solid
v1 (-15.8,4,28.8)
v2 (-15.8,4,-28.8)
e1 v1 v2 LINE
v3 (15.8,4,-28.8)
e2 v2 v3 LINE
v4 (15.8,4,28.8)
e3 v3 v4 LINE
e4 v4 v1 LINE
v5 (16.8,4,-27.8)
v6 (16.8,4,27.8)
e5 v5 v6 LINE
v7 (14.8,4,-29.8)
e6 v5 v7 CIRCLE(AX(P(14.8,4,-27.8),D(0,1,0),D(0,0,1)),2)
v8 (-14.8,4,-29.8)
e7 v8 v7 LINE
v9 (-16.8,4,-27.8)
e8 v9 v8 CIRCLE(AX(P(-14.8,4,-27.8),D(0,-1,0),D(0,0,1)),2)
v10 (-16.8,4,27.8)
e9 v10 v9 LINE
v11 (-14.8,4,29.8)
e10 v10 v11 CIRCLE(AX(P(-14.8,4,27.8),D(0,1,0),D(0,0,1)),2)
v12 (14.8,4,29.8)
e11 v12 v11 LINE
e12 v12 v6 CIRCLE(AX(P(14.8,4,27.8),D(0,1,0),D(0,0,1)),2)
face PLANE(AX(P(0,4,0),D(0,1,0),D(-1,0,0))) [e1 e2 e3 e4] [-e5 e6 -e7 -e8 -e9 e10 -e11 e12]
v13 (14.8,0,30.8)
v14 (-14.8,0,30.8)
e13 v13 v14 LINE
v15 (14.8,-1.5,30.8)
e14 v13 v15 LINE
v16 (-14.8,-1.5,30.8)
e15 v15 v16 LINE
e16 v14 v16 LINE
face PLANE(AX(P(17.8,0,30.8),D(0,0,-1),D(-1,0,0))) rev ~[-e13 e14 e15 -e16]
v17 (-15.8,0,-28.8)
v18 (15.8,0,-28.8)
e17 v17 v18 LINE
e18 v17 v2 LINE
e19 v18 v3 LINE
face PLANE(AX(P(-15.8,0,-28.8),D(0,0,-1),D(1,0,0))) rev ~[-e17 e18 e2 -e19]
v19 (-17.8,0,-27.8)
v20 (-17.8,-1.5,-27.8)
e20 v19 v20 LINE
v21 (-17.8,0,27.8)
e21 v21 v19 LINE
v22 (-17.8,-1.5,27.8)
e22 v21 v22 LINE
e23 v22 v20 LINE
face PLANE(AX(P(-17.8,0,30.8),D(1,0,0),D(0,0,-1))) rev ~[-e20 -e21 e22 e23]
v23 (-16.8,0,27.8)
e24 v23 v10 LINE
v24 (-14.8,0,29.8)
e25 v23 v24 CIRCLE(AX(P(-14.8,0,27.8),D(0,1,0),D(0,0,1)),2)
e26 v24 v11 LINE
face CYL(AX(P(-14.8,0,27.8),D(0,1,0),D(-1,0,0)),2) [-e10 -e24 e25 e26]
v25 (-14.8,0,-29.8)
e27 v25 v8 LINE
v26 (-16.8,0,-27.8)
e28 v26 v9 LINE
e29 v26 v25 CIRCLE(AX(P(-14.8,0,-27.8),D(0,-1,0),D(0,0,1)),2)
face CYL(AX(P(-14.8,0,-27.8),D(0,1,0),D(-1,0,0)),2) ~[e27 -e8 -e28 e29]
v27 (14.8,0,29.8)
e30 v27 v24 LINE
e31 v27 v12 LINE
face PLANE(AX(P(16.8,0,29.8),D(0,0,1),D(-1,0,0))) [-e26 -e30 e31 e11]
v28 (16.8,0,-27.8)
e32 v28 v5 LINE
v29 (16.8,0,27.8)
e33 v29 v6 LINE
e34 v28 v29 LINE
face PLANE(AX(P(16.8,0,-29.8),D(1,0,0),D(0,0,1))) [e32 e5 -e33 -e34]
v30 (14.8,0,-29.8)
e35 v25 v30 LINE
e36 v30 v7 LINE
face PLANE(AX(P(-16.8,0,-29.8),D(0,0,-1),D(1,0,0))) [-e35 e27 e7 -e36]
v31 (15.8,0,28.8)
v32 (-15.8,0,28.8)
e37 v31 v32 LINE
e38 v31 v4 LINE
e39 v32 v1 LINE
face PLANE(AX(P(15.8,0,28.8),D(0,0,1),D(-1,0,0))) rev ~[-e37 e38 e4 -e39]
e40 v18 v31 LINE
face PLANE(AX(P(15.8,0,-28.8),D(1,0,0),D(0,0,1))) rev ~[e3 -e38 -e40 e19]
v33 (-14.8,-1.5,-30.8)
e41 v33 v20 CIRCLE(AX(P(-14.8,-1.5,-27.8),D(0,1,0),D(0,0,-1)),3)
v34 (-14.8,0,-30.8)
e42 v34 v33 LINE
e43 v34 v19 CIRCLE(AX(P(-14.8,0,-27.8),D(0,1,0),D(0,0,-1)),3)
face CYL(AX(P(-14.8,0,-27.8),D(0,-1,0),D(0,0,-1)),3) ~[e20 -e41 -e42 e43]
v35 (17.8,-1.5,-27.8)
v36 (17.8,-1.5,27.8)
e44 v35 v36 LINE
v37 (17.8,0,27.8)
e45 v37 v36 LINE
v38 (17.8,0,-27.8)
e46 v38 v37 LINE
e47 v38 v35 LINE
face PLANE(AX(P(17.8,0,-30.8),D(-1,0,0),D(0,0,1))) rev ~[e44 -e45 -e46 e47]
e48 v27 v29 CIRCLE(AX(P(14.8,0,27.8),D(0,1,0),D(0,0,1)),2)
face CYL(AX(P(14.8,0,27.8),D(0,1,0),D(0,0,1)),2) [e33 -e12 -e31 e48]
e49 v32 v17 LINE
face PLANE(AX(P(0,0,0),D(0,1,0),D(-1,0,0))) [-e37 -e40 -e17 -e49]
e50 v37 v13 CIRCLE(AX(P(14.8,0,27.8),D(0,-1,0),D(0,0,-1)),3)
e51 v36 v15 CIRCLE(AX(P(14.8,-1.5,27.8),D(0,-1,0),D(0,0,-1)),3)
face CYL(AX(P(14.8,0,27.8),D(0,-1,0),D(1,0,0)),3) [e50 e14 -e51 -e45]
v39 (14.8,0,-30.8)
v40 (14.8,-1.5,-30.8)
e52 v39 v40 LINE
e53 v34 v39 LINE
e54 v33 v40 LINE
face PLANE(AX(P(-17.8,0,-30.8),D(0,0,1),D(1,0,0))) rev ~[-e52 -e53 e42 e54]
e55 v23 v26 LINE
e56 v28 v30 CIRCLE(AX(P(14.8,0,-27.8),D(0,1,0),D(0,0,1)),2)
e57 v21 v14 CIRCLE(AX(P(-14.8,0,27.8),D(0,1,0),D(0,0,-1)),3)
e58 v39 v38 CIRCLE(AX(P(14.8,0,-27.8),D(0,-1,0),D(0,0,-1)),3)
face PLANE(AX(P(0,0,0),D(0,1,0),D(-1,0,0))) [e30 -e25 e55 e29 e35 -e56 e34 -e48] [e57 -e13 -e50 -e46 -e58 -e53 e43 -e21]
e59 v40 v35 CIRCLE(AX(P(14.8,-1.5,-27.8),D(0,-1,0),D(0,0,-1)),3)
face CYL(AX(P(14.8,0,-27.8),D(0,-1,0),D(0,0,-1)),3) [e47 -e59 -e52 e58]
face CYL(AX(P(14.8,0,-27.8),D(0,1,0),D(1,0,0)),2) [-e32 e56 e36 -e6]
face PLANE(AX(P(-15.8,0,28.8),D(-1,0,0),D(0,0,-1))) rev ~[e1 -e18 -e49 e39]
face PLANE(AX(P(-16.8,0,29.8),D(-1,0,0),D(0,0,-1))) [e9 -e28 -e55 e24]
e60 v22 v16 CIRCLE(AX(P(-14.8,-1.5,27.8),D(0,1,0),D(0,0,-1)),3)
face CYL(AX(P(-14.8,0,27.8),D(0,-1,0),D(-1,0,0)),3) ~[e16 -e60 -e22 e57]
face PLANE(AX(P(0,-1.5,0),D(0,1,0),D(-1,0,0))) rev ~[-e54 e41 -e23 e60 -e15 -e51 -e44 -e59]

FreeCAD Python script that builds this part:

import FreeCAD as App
import Part
import Sketcher
Q = App.Units.Quantity


def edges_at(feature, points):
    """Names of the edges that pass closest to the given points."""
    edges = feature.Shape.Edges
    near = lambda p: min(range(len(edges)), key=lambda i: edges[i].distToShape(Part.Vertex(*p))[0])
    return sorted({f"Edge{near(p) + 1}" for p in points})


def add_polygon(sketch, points):
    """Adds a closed chain of lines whose ends are joined by coincident constraints."""
    first, n = sketch.GeometryCount, len(points)
    for a, b in zip(points, points[1:] + points[:1]):
        sketch.addGeometry(Part.LineSegment(App.Vector(*a, 0), App.Vector(*b, 0)), False)
    for i in range(n):
        sketch.addConstraint(Sketcher.Constraint("Coincident", first + i, 2, first + (i + 1) % n, 1))

doc = App.newDocument("Part")
body = doc.addObject("PartDesign::Body", "Body")

# Sketch on XZ plane
sketch1 = body.newObject("Sketcher::SketchObject", "Sketch")
sketch1.AttachmentSupport = (doc.getObject("XZ_Plane"), [""])
sketch1.MapMode = "FlatFace"
add_polygon(sketch1, [(18, -31), (-18, -31), (-18, 31), (18, 31)])  # lines 0-3
sketch1.addConstraint([
    Sketcher.Constraint("Horizontal", 0),
    Sketcher.Constraint("Vertical", 1),
    Sketcher.Constraint("Horizontal", 2),
    Sketcher.Constraint("Vertical", 3),
    Sketcher.Constraint("Symmetric", 0, 2, 2, 2, -1, 1),
    Sketcher.Constraint("DistanceX", 0, 2, 0, 1, Q("35.6 mm")),
    Sketcher.Constraint("DistanceY", 1, 1, 1, 2, Q("61.6 mm")),
])
pad1 = body.newObject("PartDesign::Pad", "Pad")
pad1.Profile = sketch1
pad1.Length = 1.5

# Sketch on XZ plane
sketch2 = body.newObject("Sketcher::SketchObject", "Sketch001")
sketch2.AttachmentSupport = (doc.getObject("XZ_Plane"), [""])
sketch2.MapMode = "FlatFace"
add_polygon(sketch2, [(17, -30), (-17, -30), (-17, 30), (17, 30)])  # lines 0-3
add_polygon(sketch2, [(-16, 29), (-16, -29), (16, -29), (16, 29)])  # lines 4-7
sketch2.addConstraint([
    Sketcher.Constraint("Horizontal", 0),
    Sketcher.Constraint("Vertical", 1),
    Sketcher.Constraint("Horizontal", 2),
    Sketcher.Constraint("Vertical", 3),
    Sketcher.Constraint("Vertical", 4),
    Sketcher.Constraint("Horizontal", 5),
    Sketcher.Constraint("Vertical", 6),
    Sketcher.Constraint("Horizontal", 7),
    Sketcher.Constraint("Symmetric", 0, 2, 2, 2, -1, 1),
    Sketcher.Constraint("Symmetric", 4, 2, 6, 2, -1, 1),
    Sketcher.Constraint("DistanceX", 0, 2, 4, 2, Q("1 mm")),
    Sketcher.Constraint("DistanceY", 0, 2, 4, 2, Q("1 mm")),
    Sketcher.Constraint("DistanceX", 0, 2, 0, 1, Q("33.6 mm")),
    Sketcher.Constraint("DistanceY", 1, 1, 1, 2, Q("59.6 mm")),
])
pad2 = body.newObject("PartDesign::Pad", "Pad001")
pad2.Profile = sketch2
pad2.Length = 4
pad2.Reversed = True
doc.recompute()

fillet = body.newObject("PartDesign::Fillet", "Fillet")
fillet.Base = (pad2, edges_at(pad2, [
    (16.8, 2, 29.8),
    (16.8, 2, -29.8),
    (-16.8, 2, -29.8),
    (-16.8, 2, 29.8),
]))
fillet.Radius = 2
doc.recompute()

fillet2 = body.newObject("PartDesign::Fillet", "Fillet001")
fillet2.Base = (fillet, edges_at(fillet, [
    (-17.8, -0.75, 30.8),
    (-17.8, -0.75, -30.8),
    (17.8, -0.75, 30.8),
    (17.8, -0.75, -30.8),
]))
fillet2.Radius = 3

doc.recompute()
